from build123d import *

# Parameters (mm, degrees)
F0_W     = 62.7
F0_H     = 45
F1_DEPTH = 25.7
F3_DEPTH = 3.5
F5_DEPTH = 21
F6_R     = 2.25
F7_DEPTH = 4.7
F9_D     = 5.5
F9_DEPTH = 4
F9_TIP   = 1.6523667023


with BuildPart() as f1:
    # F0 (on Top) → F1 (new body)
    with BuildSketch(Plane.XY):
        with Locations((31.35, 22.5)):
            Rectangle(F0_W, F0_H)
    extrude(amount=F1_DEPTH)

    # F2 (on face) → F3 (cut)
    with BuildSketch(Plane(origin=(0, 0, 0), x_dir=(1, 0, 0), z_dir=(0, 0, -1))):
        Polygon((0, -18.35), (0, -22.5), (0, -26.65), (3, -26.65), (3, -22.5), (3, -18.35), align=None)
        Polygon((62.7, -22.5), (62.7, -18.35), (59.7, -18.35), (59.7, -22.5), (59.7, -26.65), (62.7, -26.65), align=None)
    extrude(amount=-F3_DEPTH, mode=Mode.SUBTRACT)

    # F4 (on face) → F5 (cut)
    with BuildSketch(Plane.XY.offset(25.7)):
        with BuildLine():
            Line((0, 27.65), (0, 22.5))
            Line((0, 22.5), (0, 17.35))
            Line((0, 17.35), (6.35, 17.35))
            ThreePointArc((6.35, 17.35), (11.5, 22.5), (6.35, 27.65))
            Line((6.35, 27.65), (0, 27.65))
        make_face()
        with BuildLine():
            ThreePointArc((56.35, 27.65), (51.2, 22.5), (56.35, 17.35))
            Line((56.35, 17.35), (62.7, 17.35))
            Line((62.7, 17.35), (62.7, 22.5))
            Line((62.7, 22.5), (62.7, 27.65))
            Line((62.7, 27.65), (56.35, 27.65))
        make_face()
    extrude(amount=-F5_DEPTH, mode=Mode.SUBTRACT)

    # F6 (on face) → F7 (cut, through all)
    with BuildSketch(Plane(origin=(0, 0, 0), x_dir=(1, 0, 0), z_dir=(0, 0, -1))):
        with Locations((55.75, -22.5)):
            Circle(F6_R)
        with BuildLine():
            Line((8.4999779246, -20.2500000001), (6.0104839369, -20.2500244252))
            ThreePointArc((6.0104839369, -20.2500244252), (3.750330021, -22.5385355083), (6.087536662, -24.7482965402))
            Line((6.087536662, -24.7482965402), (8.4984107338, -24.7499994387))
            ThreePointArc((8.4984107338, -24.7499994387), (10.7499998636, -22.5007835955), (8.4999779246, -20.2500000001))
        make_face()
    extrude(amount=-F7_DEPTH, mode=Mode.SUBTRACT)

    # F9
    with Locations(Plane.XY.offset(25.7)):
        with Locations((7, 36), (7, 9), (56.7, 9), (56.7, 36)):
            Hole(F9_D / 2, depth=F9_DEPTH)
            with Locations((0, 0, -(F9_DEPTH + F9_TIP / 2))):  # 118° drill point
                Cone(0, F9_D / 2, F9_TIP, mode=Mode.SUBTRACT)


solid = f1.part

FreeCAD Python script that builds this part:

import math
import FreeCAD as App
import Part
import Sketcher
from FreeCAD import Vector


def add_polygon(sketch, points):
    """Adds a closed chain of lines whose ends are joined by coincident constraints."""
    first, n = sketch.GeometryCount, len(points)
    for a, b in zip(points, points[1:] + points[:1]):
        sketch.addGeometry(Part.LineSegment(App.Vector(*a, 0), App.Vector(*b, 0)), False)
    for i in range(n):
        sketch.addConstraint(Sketcher.Constraint("Coincident", first + i, 2, first + (i + 1) % n, 1))

doc = App.newDocument("Part")
body = doc.addObject("PartDesign::Body", "Body")

# Sketch on XY plane
sketch1 = body.newObject("Sketcher::SketchObject", "Sketch")
sketch1.AttachmentSupport = (doc.getObject("XY_Plane"), [""])
sketch1.MapMode = "FlatFace"
add_polygon(sketch1, [(0, 45), (0, 0), (62.7, 0), (62.7, 45)])  # lines 0-3
sketch1.addConstraint(Sketcher.Constraint("Vertical", 0))
sketch1.addConstraint(Sketcher.Constraint("Horizontal", 1))
sketch1.addConstraint(Sketcher.Constraint("Vertical", 2))
sketch1.addConstraint(Sketcher.Constraint("Horizontal", 3))
sketch1.addConstraint(Sketcher.Constraint("Coincident", 0, 2, -1, 1))
sketch1.addConstraint(Sketcher.Constraint("DistanceY", 0, 2, 0, 1, 45.0))
sketch1.addConstraint(Sketcher.Constraint("DistanceX", 1, 1, 1, 2, 62.7))
pad1 = body.newObject("PartDesign::Pad", "Pad")
pad1.Profile = sketch1
pad1.Length = 25.7

# Sketch on XY plane
sketch2 = body.newObject("Sketcher::SketchObject", "Sketch001")
sketch2.AttachmentSupport = (doc.getObject("XY_Plane"), [""])
sketch2.MapMode = "FlatFace"
add_polygon(sketch2, [(0, 18.35), (0, 26.65), (3, 26.65), (3, 18.35)])  # lines 0-3
add_polygon(sketch2, [(62.7, 18.35), (59.7, 18.35), (59.7, 26.65), (62.7, 26.65)])  # lines 4-7
sketch2.addConstraint(Sketcher.Constraint("Vertical", 0))
sketch2.addConstraint(Sketcher.Constraint("Horizontal", 1))
sketch2.addConstraint(Sketcher.Constraint("Vertical", 2))
sketch2.addConstraint(Sketcher.Constraint("Horizontal", 3))
sketch2.addConstraint(Sketcher.Constraint("Horizontal", 4))
sketch2.addConstraint(Sketcher.Constraint("Vertical", 5))
sketch2.addConstraint(Sketcher.Constraint("Horizontal", 6))
sketch2.addConstraint(Sketcher.Constraint("Vertical", 7))
sketch2.addConstraint(Sketcher.Constraint("PointOnObject", 0, 2, -2))
sketch2.addConstraint(Sketcher.Constraint("Horizontal", 3, 2, 4, 2))
sketch2.addConstraint(Sketcher.Constraint("Horizontal", 1, 2, 5, 2))
sketch2.addConstraint(Sketcher.Constraint("Equal", 3, 4))
sketch2.addConstraint(Sketcher.Constraint("DistanceX", 1, 1, 1, 2, 3.0))
sketch2.addConstraint(Sketcher.Constraint("DistanceY", 0, 1, 0, 2, 8.3))
sketch2.addConstraint(Sketcher.Constraint("DistanceX", -1, 1, 4, 2, 59.7))
sketch2.addConstraint(Sketcher.Constraint("DistanceY", -1, 1, 0, 2, 26.65))
pocket1 = body.newObject("PartDesign::Pocket", "Pocket")
pocket1.Profile = sketch2
pocket1.Length = 3.5
pocket1.Reversed = True

# Sketch on XY plane
sketch3 = body.newObject("Sketcher::SketchObject", "Sketch002")
sketch3.AttachmentSupport = (doc.getObject("XY_Plane"), [""])
sketch3.MapMode = "FlatFace"
sketch3.AttachmentOffset = App.Placement(Vector(0, 0, 25.7), App.Rotation())
sketch3.addGeometry(Part.LineSegment(Vector(0, 27.65, 0), Vector(0, 17.35, 0)), False)
sketch3.addGeometry(Part.LineSegment(Vector(0, 17.35, 0), Vector(6.35, 17.35, 0)), False)
sketch3.addGeometry(Part.ArcOfCircle(Part.Circle(Vector(6.35, 22.5, 0), Vector(0, 0, 1), 5.15), math.radians(-90), math.radians(90)), False)
sketch3.addGeometry(Part.LineSegment(Vector(6.35, 27.65, 0), Vector(0, 27.65, 0)), False)
sketch3.addGeometry(Part.ArcOfCircle(Part.Circle(Vector(56.35, 22.5, 0), Vector(0, 0, 1), 5.15), math.radians(90), math.radians(270)), False)
sketch3.addGeometry(Part.LineSegment(Vector(56.35, 17.35, 0), Vector(62.7, 17.35, 0)), False)
sketch3.addGeometry(Part.LineSegment(Vector(62.7, 17.35, 0), Vector(62.7, 27.65, 0)), False)
sketch3.addGeometry(Part.LineSegment(Vector(62.7, 27.65, 0), Vector(56.35, 27.65, 0)), False)
sketch3.addConstraint(Sketcher.Constraint("Coincident", 0, 2, 1, 1))
sketch3.addConstraint(Sketcher.Constraint("Tangent", 1, 2, 2, 1))
sketch3.addConstraint(Sketcher.Constraint("Tangent", 2, 2, 3, 1))
sketch3.addConstraint(Sketcher.Constraint("Coincident", 3, 2, 0, 1))
sketch3.addConstraint(Sketcher.Constraint("Tangent", 4, 2, 5, 1))
sketch3.addConstraint(Sketcher.Constraint("Coincident", 5, 2, 6, 1))
sketch3.addConstraint(Sketcher.Constraint("Coincident", 6, 2, 7, 1))
sketch3.addConstraint(Sketcher.Constraint("Tangent", 7, 2, 4, 1))
sketch3.addConstraint(Sketcher.Constraint("Vertical", 0))
sketch3.addConstraint(Sketcher.Constraint("Horizontal", 1))
sketch3.addConstraint(Sketcher.Constraint("Horizontal", 3))
sketch3.addConstraint(Sketcher.Constraint("Horizontal", 5))
sketch3.addConstraint(Sketcher.Constraint("Vertical", 6))
sketch3.addConstraint(Sketcher.Constraint("Horizontal", 7))
sketch3.addConstraint(Sketcher.Constraint("Equal", 2, 4))
sketch3.addConstraint(Sketcher.Constraint("PointOnObject", 0, 2, -2))
sketch3.addConstraint(Sketcher.Constraint("Horizontal", 2, 3, 4, 3))
sketch3.addConstraint(Sketcher.Constraint("Equal", 3, 5))
sketch3.addConstraint(Sketcher.Constraint("Radius", 2, 5.15))
sketch3.addConstraint(Sketcher.Constraint("DistanceX", 2, 3, 4, 3, 50.0))
sketch3.addConstraint(Sketcher.Constraint("DistanceX", 1, 1, 1, 2, 6.35))
sketch3.addConstraint(Sketcher.Constraint("DistanceY", -1, 1, 2, 3, 22.5))
pocket2 = body.newObject("PartDesign::Pocket", "Pocket001")
pocket2.Profile = sketch3
pocket2.Length = 21

# Sketch on XY plane
sketch4 = body.newObject("Sketcher::SketchObject", "Sketch003")
sketch4.AttachmentSupport = (doc.getObject("XY_Plane"), [""])
sketch4.MapMode = "FlatFace"
sketch4.addGeometry(Part.Circle(Vector(55.75, 22.5, 0), Vector(0, 0, 1), 2.25), False)
sketch4.addGeometry(Part.LineSegment(Vector(8.499978, 20.25, 0), Vector(6.010484, 20.250024, 0)), False)
sketch4.addGeometry(Part.ArcOfCircle(Part.Circle(Vector(6, 22.5, 0), Vector(0, 0, 1), 2.25), math.radians(87.770334), math.radians(270.266972)), False)
sketch4.addGeometry(Part.LineSegment(Vector(6.087537, 24.748297, 0), Vector(8.498411, 24.749999, 0)), False)
sketch4.addGeometry(Part.ArcOfCircle(Part.Circle(Vector(8.5, 22.5, 0), Vector(0, 0, 1), 2.25), math.radians(-90.000562), math.radians(90.04047)), False)
sketch4.addConstraint(Sketcher.Constraint("Coincident", 1, 2, 2, 2))
sketch4.addConstraint(Sketcher.Constraint("Coincident", 2, 1, 3, 1))
sketch4.addConstraint(Sketcher.Constraint("Tangent", 3, 2, 4, 2))
sketch4.addConstraint(Sketcher.Constraint("Tangent", 4, 1, 1, 1))
sketch4.addConstraint(Sketcher.Constraint("Equal", 0, 2))
sketch4.addConstraint(Sketcher.Constraint("Equal", 2, 4))
sketch4.addConstraint(Sketcher.Constraint("Horizontal", 0, 3, 2, 3))
sketch4.addConstraint(Sketcher.Constraint("Horizontal", 2, 3, 4, 3))
sketch4.addConstraint(Sketcher.Constraint("Diameter", 0, 4.5))
sketch4.addConstraint(Sketcher.Constraint("DistanceX", -1, 1, 2, 3, 6.0))
sketch4.addConstraint(Sketcher.Constraint("DistanceY", -1, 1, 0, 3, 22.5))
sketch4.addConstraint(Sketcher.Constraint("DistanceX", -1, 1, 4, 3, 8.5))
sketch4.addConstraint(Sketcher.Constraint("DistanceX", -1, 1, 0, 3, 55.75))
sketch4.addConstraint(Sketcher.Constraint("DistanceX", -1, 1, 3, 2, 8.498411))
sketch4.addConstraint(Sketcher.Constraint("Distance", 1, 2.489494))
pocket3 = body.newObject("PartDesign::Pocket", "Pocket002")
pocket3.Profile = sketch4
pocket3.Type = "ThroughAll"
pocket3.Reversed = True

# Sketch on XY plane
sketch5 = body.newObject("Sketcher::SketchObject", "Sketch004")
sketch5.AttachmentSupport = (doc.getObject("XY_Plane"), [""])
sketch5.MapMode = "FlatFace"
sketch5.AttachmentOffset = App.Placement(Vector(0, 0, 25.7), App.Rotation())
sketch5.addGeometry(Part.Circle(Vector(7, 36, 0), Vector(0, 0, 1), 2.75), False)
sketch5.addGeometry(Part.Circle(Vector(7, 9, 0), Vector(0, 0, 1), 2.75), False)
sketch5.addGeometry(Part.Circle(Vector(56.7, 9, 0), Vector(0, 0, 1), 2.75), False)
sketch5.addGeometry(Part.Circle(Vector(56.7, 36, 0), Vector(0, 0, 1), 2.75), False)
sketch5.addConstraint(Sketcher.Constraint("Equal", 0, 1))
sketch5.addConstraint(Sketcher.Constraint("Equal", 1, 2))
sketch5.addConstraint(Sketcher.Constraint("Equal", 2, 3))
sketch5.addConstraint(Sketcher.Constraint("Horizontal", 1, 3, 2, 3))
sketch5.addConstraint(Sketcher.Constraint("Horizontal", 0, 3, 3, 3))
sketch5.addConstraint(Sketcher.Constraint("Vertical", 0, 3, 1, 3))
sketch5.addConstraint(Sketcher.Constraint("Vertical", 2, 3, 3, 3))
sketch5.addConstraint(Sketcher.Constraint("Diameter", 0, 5.5))
sketch5.addConstraint(Sketcher.Constraint("DistanceX", -1, 1, 0, 3, 7.0))
sketch5.addConstraint(Sketcher.Constraint("DistanceY", -1, 1, 0, 3, 36.0))
sketch5.addConstraint(Sketcher.Constraint("DistanceY", -1, 1, 1, 3, 9.0))
sketch5.addConstraint(Sketcher.Constraint("DistanceX", -1, 1, 2, 3, 56.7))
doc.recompute()
hole = body.newObject("PartDesign::Hole", "Hole")
hole.Profile = sketch5
hole.ThreadType = "None"
hole.Diameter = 5.5
hole.DepthType = "Dimension"
hole.Depth = 4
hole.DrillPoint = "Angled"
hole.DrillPointAngle = 118

doc.recompute()
